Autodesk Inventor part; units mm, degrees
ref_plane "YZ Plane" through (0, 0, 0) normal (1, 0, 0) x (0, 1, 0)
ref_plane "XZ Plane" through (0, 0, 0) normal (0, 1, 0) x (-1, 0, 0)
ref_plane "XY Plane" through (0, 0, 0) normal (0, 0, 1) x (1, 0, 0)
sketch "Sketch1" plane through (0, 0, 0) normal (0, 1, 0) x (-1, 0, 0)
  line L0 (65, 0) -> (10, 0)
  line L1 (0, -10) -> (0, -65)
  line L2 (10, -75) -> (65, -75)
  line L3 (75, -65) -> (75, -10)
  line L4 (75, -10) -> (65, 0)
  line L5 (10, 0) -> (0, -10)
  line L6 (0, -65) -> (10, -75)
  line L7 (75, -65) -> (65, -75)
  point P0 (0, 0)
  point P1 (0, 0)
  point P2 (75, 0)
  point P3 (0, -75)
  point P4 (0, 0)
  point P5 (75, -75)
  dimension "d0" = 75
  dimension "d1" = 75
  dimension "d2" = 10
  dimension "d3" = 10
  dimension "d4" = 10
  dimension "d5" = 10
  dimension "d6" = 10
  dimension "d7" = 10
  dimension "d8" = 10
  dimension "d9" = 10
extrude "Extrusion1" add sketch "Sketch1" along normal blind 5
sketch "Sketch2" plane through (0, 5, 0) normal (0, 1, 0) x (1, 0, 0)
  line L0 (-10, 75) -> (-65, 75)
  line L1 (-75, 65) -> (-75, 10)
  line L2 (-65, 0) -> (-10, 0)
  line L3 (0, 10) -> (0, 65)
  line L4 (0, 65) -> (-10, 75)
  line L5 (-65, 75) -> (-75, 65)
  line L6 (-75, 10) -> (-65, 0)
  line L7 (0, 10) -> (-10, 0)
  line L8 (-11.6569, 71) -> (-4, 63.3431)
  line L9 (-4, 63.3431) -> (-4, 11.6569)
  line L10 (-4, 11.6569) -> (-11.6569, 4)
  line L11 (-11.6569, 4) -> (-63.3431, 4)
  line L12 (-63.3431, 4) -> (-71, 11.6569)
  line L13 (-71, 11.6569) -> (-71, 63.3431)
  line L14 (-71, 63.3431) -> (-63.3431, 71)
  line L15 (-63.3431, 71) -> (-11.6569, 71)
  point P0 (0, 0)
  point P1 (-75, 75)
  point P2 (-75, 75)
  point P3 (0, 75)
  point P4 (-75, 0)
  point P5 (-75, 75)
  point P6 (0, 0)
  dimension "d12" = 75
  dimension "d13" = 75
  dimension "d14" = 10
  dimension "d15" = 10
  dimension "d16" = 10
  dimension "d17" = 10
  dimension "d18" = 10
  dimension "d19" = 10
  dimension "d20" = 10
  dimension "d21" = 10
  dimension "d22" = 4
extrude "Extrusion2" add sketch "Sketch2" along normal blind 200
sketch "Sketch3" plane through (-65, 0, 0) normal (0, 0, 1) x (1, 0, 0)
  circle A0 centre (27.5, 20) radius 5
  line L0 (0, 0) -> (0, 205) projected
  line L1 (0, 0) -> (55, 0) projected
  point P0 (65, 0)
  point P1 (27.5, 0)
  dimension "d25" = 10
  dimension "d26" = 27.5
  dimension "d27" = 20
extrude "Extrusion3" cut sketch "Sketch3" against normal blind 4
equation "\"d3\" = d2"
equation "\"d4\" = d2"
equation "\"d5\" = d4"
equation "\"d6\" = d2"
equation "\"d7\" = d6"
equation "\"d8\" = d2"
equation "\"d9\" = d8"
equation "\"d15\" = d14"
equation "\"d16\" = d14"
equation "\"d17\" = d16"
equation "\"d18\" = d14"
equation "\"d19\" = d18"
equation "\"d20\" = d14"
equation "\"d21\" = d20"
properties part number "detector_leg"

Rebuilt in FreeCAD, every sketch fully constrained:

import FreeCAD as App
import Part
import Sketcher
from FreeCAD import Vector

doc = App.newDocument("Part")
body = doc.addObject("PartDesign::Body", "Body")

# Sketch on XZ plane
sketch1 = body.newObject("Sketcher::SketchObject", "Sketch")
sketch1.AttachmentSupport = (doc.getObject("XZ_Plane"), [""])
sketch1.MapMode = "FlatFace"
sketch1.addGeometry([
    Part.LineSegment(Vector(-75, -10, 0), Vector(-65, 0, 0)),  # 0
    Part.LineSegment(Vector(-65, 0, 0), Vector(-10, 0, 0)),  # 1
    Part.LineSegment(Vector(-10, 0, 0), Vector(0, -10, 0)),  # 2
    Part.LineSegment(Vector(0, -10, 0), Vector(0, -65, 0)),  # 3
    Part.LineSegment(Vector(0, -65, 0), Vector(-10, -75, 0)),  # 4
    Part.LineSegment(Vector(-10, -75, 0), Vector(-65, -75, 0)),  # 5
    Part.LineSegment(Vector(-65, -75, 0), Vector(-75, -65, 0)),  # 6
    Part.LineSegment(Vector(-75, -65, 0), Vector(-75, -10, 0)),  # 7
], False)
sketch1.addConstraint([
    Sketcher.Constraint("Coincident", 0, 2, 1, 1),
    Sketcher.Constraint("Coincident", 1, 2, 2, 1),
    Sketcher.Constraint("Coincident", 2, 2, 3, 1),
    Sketcher.Constraint("Coincident", 3, 2, 4, 1),
    Sketcher.Constraint("Coincident", 4, 2, 5, 1),
    Sketcher.Constraint("Coincident", 5, 2, 6, 1),
    Sketcher.Constraint("Coincident", 6, 2, 7, 1),
    Sketcher.Constraint("Coincident", 7, 2, 0, 1),
    Sketcher.Constraint("Horizontal", 1),
    Sketcher.Constraint("Vertical", 3),
    Sketcher.Constraint("Horizontal", 5),
    Sketcher.Constraint("Vertical", 7),
    Sketcher.Constraint("PointOnObject", 0, 2, -1),
    Sketcher.Constraint("PointOnObject", 2, 2, -2),
    Sketcher.Constraint("Perpendicular", 0, 2),
    Sketcher.Constraint("Perpendicular", 2, 4),
    Sketcher.Constraint("Perpendicular", 4, 6),
    Sketcher.Constraint("Horizontal", 3, 2, 6, 2),
    Sketcher.Constraint("Horizontal", 2, 2, 7, 2),
    Sketcher.Constraint("Vertical", 1, 2, 4, 2),
    Sketcher.Constraint("Vertical", 0, 2, 5, 2),
    Sketcher.Constraint("Equal", 5, 3),
    Sketcher.Constraint("DistanceX", 1, 2, -1, 1, 10.0),
    Sketcher.Constraint("DistanceY", 4, 2, -1, 1, 75.0),
])
pad1 = body.newObject("PartDesign::Pad", "Pad")
pad1.Profile = sketch1
pad1.Length = 5
pad1.Reversed = True

# Sketch on XZ plane
sketch2 = body.newObject("Sketcher::SketchObject", "Sketch001")
sketch2.AttachmentSupport = (doc.getObject("XZ_Plane"), [""])
sketch2.MapMode = "FlatFace"
sketch2.AttachmentOffset = App.Placement(Vector(0, 0, -5), App.Rotation())
sketch2.addGeometry([
    Part.LineSegment(Vector(0, -65, 0), Vector(-10, -75, 0)),  # 0
    Part.LineSegment(Vector(-10, -75, 0), Vector(-65, -75, 0)),  # 1
    Part.LineSegment(Vector(-65, -75, 0), Vector(-75, -65, 0)),  # 2
    Part.LineSegment(Vector(-75, -65, 0), Vector(-75, -10, 0)),  # 3
    Part.LineSegment(Vector(-75, -10, 0), Vector(-65, 0, 0)),  # 4
    Part.LineSegment(Vector(-65, 0, 0), Vector(-10, 0, 0)),  # 5
    Part.LineSegment(Vector(-10, 0, 0), Vector(0, -10, 0)),  # 6
    Part.LineSegment(Vector(0, -10, 0), Vector(0, -65, 0)),  # 7
    Part.LineSegment(Vector(-63.3431, -71, 0), Vector(-11.6569, -71, 0)),  # 8
    Part.LineSegment(Vector(-11.6569, -71, 0), Vector(-4, -63.3431, 0)),  # 9
    Part.LineSegment(Vector(-4, -63.3431, 0), Vector(-4, -11.6569, 0)),  # 10
    Part.LineSegment(Vector(-4, -11.6569, 0), Vector(-11.6569, -4, 0)),  # 11
    Part.LineSegment(Vector(-11.6569, -4, 0), Vector(-63.3431, -4, 0)),  # 12
    Part.LineSegment(Vector(-63.3431, -4, 0), Vector(-71, -11.6569, 0)),  # 13
    Part.LineSegment(Vector(-71, -11.6569, 0), Vector(-71, -63.3431, 0)),  # 14
    Part.LineSegment(Vector(-71, -63.3431, 0), Vector(-63.3431, -71, 0)),  # 15
], False)
sketch2.addConstraint([
    Sketcher.Constraint("Coincident", 0, 2, 1, 1),
    Sketcher.Constraint("Coincident", 1, 2, 2, 1),
    Sketcher.Constraint("Coincident", 2, 2, 3, 1),
    Sketcher.Constraint("Coincident", 3, 2, 4, 1),
    Sketcher.Constraint("Coincident", 4, 2, 5, 1),
    Sketcher.Constraint("Coincident", 5, 2, 6, 1),
    Sketcher.Constraint("Coincident", 6, 2, 7, 1),
    Sketcher.Constraint("Coincident", 7, 2, 0, 1),
    Sketcher.Constraint("Coincident", 8, 2, 9, 1),
    Sketcher.Constraint("Coincident", 9, 2, 10, 1),
    Sketcher.Constraint("Coincident", 10, 2, 11, 1),
    Sketcher.Constraint("Coincident", 11, 2, 12, 1),
    Sketcher.Constraint("Coincident", 12, 2, 13, 1),
    Sketcher.Constraint("Coincident", 13, 2, 14, 1),
    Sketcher.Constraint("Coincident", 14, 2, 15, 1),
    Sketcher.Constraint("Coincident", 15, 2, 8, 1),
    Sketcher.Constraint("Horizontal", 1),
    Sketcher.Constraint("Vertical", 3),
    Sketcher.Constraint("Horizontal", 5),
    Sketcher.Constraint("Vertical", 7),
    Sketcher.Constraint("Horizontal", 8),
    Sketcher.Constraint("Vertical", 10),
    Sketcher.Constraint("Horizontal", 12),
    Sketcher.Constraint("Vertical", 14),
    Sketcher.Constraint("PointOnObject", 4, 2, -1),
    Sketcher.Constraint("PointOnObject", 6, 2, -2),
    Sketcher.Constraint("Perpendicular", 0, 2),
    Sketcher.Constraint("Perpendicular", 2, 4),
    Sketcher.Constraint("Perpendicular", 4, 6),
    Sketcher.Constraint("Perpendicular", 6, 9),
    Sketcher.Constraint("Perpendicular", 9, 11),
    Sketcher.Constraint("Perpendicular", 11, 13),
    Sketcher.Constraint("Perpendicular", 13, 15),
    Sketcher.Constraint("Horizontal", 3, 2, 6, 2),
    Sketcher.Constraint("Horizontal", 2, 2, 7, 2),
    Sketcher.Constraint("Horizontal", 10, 2, 13, 2),
    Sketcher.Constraint("Horizontal", 9, 2, 14, 2),
    Sketcher.Constraint("Vertical", 1, 2, 4, 2),
    Sketcher.Constraint("Vertical", 0, 2, 5, 2),
    Sketcher.Constraint("Vertical", 8, 2, 11, 2),
    Sketcher.Constraint("Equal", 5, 3),
    Sketcher.Constraint("Equal", 12, 10),
    Sketcher.Constraint("DistanceX", 0, 2, -1, 1, 10.0),
    Sketcher.Constraint("DistanceY", 0, 2, -1, 1, 75.0),
    Sketcher.Constraint("DistanceX", 9, 2, -1, 1, 4.0),
    Sketcher.Constraint("DistanceY", 11, 2, -1, 1, 4.0),
    Sketcher.Constraint("DistanceY", 0, 2, 8, 2, 4.0),
    Sketcher.Constraint("DistanceX", 8, 1, 8, 2, 51.6862),
])
pad2 = body.newObject("PartDesign::Pad", "Pad001")
pad2.Profile = sketch2
pad2.Length = 200
pad2.Reversed = True

# Sketch on XY plane
sketch3 = body.newObject("Sketcher::SketchObject", "Sketch002")
sketch3.AttachmentSupport = (doc.getObject("XY_Plane"), [""])
sketch3.MapMode = "FlatFace"
sketch3.addGeometry(Part.Circle(Vector(-37.5, 20, 0), Vector(0, 0, 1), 5), False)
sketch3.addConstraint([
    Sketcher.Constraint("Diameter", 0, 10.0),
    Sketcher.Constraint("DistanceY", -1, 1, 0, 3, 20.0),
    Sketcher.Constraint("DistanceX", 0, 3, -1, 1, 37.5),
])
pocket1 = body.newObject("PartDesign::Pocket", "Pocket")
pocket1.Profile = sketch3
pocket1.Length = 4

doc.recompute()
